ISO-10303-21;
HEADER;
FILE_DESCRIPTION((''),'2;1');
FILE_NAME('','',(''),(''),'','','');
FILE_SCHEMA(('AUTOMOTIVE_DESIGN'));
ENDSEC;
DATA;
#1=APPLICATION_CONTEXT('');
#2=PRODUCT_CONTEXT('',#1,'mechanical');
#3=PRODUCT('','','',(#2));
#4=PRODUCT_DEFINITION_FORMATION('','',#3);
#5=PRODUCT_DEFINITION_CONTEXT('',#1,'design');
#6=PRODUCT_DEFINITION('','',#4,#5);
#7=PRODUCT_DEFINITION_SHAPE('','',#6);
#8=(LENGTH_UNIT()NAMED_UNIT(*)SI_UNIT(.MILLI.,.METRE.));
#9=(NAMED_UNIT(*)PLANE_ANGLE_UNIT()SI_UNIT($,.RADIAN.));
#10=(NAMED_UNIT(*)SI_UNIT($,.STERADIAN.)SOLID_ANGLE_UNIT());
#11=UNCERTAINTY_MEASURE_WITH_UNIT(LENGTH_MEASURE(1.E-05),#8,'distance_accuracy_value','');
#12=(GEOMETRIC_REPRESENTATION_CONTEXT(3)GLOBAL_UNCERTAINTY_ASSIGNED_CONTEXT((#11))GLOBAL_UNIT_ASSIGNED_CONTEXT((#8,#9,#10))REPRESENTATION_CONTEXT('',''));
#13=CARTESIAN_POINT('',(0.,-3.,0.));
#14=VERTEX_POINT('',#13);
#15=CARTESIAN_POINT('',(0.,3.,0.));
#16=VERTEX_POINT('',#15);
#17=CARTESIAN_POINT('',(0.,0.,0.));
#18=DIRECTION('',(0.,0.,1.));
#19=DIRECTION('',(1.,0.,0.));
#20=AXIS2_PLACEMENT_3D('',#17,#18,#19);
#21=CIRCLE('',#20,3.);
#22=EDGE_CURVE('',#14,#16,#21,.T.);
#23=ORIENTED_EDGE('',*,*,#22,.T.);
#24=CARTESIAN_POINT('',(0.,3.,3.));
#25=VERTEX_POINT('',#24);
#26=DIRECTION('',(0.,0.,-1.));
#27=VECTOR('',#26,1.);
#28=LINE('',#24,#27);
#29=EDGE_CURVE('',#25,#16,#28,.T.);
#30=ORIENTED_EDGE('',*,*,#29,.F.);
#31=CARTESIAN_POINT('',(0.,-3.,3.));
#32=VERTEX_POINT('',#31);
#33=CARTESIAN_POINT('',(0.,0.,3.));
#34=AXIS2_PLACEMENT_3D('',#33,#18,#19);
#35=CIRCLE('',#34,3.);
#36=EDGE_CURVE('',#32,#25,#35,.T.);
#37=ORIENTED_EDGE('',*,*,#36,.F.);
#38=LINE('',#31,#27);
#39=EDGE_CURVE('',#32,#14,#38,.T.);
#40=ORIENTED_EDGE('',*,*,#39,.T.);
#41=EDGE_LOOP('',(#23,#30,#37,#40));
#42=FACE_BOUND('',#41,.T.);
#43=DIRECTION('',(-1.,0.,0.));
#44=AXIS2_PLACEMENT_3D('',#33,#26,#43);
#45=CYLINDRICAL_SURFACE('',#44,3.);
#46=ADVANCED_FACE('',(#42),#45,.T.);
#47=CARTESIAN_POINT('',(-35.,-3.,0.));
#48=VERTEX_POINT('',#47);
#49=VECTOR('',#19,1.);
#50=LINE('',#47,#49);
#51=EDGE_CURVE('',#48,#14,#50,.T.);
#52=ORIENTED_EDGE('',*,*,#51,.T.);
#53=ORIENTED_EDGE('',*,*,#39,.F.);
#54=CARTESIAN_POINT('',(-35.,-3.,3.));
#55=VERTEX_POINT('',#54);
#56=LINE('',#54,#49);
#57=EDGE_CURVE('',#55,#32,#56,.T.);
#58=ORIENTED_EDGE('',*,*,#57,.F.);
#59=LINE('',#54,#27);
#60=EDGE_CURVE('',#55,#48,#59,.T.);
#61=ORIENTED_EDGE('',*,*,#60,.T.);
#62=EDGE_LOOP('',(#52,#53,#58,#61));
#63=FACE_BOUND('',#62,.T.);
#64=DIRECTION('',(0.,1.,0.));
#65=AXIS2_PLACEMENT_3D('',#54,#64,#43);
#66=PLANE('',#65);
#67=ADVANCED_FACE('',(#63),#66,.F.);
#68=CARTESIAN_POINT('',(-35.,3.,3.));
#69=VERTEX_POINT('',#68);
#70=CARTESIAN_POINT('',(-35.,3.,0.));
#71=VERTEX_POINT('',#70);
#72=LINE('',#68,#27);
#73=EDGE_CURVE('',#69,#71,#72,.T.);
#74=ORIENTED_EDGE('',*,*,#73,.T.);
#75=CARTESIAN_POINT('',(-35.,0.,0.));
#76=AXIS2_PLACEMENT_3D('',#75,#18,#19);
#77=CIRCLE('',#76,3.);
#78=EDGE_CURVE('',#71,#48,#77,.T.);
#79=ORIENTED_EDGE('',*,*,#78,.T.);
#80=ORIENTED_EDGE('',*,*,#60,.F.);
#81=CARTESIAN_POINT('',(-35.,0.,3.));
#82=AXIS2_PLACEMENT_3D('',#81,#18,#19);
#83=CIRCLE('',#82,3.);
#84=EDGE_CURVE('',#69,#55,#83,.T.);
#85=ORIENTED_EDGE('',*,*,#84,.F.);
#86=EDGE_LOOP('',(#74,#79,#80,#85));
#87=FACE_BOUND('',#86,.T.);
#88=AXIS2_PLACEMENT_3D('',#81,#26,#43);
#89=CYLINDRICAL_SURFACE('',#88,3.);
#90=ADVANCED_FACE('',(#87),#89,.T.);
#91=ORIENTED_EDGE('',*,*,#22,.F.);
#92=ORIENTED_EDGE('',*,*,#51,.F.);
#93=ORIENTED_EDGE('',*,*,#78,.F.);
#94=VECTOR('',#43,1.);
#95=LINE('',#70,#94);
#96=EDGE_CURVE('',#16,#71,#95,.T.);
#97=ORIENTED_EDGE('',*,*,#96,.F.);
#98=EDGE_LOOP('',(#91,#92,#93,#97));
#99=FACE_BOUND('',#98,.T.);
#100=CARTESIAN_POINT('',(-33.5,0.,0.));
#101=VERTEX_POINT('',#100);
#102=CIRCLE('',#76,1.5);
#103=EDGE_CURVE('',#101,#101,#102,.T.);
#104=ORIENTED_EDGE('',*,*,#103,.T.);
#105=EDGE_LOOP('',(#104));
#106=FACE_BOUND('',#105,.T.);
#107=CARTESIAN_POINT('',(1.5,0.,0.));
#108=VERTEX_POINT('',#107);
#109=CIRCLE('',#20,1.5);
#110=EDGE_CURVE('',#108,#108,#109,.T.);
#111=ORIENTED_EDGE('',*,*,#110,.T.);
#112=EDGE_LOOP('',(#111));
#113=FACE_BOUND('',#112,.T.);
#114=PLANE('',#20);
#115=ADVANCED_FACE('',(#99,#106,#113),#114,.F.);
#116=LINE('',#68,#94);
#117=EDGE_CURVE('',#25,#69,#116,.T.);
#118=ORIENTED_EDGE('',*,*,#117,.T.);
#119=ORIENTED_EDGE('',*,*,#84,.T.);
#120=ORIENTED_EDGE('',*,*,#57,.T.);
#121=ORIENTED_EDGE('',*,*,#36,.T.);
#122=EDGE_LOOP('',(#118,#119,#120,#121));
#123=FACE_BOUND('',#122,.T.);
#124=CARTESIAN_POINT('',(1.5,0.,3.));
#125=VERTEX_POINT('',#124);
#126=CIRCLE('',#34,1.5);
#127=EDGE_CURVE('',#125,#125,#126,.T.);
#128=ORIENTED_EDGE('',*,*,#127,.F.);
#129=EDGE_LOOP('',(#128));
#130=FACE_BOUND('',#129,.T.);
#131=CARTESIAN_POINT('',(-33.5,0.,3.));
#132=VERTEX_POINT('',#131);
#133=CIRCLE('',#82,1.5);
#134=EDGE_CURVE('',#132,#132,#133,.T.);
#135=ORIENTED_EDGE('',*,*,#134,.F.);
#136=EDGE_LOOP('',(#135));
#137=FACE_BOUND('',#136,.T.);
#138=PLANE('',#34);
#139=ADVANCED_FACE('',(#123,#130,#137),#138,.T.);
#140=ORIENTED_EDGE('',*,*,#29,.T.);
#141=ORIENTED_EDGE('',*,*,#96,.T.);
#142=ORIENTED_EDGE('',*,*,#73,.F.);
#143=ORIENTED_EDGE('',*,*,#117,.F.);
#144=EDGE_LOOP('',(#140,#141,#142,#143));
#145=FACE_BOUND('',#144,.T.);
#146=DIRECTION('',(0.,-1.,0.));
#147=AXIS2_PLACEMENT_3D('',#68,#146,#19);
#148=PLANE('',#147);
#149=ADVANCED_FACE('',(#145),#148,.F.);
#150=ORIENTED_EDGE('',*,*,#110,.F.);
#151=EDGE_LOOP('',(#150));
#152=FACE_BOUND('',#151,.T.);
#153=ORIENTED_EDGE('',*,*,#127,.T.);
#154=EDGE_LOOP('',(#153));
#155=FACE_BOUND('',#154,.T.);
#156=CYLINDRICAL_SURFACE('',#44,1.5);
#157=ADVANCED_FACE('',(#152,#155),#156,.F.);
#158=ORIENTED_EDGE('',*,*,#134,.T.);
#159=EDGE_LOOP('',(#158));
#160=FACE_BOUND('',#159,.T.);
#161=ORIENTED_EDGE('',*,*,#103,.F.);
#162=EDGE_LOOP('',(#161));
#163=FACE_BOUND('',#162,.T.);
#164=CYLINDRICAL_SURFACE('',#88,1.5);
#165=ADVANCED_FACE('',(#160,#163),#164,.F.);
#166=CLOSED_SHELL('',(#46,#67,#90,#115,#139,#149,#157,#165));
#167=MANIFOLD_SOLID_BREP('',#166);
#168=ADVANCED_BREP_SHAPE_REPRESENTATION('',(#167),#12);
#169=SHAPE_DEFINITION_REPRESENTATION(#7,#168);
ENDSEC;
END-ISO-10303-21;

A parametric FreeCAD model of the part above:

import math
import FreeCAD as App
import Part
import Sketcher
Q = App.Units.Quantity

doc = App.newDocument("Part")
body = doc.addObject("PartDesign::Body", "Body")

# Sketch on XY plane
sketch1 = body.newObject("Sketcher::SketchObject", "Sketch")
sketch1.AttachmentSupport = (doc.getObject("XY_Plane"), [""])
sketch1.MapMode = "FlatFace"
sketch1.addGeometry(Part.LineSegment(App.Vector(0, 3, 0), App.Vector(-35, 3, 0)), False)
sketch1.addGeometry(Part.ArcOfCircle(Part.Circle(App.Vector(-35, 0, 0), App.Vector(0, 0, 1), 3), math.radians(90), math.radians(270)), False)
sketch1.addGeometry(Part.LineSegment(App.Vector(-35, -3, 0), App.Vector(0, -3, 0)), False)
sketch1.addGeometry(Part.ArcOfCircle(Part.Circle(App.Vector(0, 0, 0), App.Vector(0, 0, 1), 3), math.radians(-90), math.radians(90)), False)
sketch1.addGeometry(Part.Circle(App.Vector(0, 0, 0), App.Vector(0, 0, 1), 1.5), False)
sketch1.addGeometry(Part.Circle(App.Vector(-35, 0, 0), App.Vector(0, 0, 1), 1.5), False)
sketch1.addConstraint(Sketcher.Constraint("Tangent", 0, 2, 1, 1))
sketch1.addConstraint(Sketcher.Constraint("Tangent", 1, 2, 2, 1))
sketch1.addConstraint(Sketcher.Constraint("Tangent", 2, 2, 3, 1))
sketch1.addConstraint(Sketcher.Constraint("Tangent", 3, 2, 0, 1))
sketch1.addConstraint(Sketcher.Constraint("Horizontal", 0))
sketch1.addConstraint(Sketcher.Constraint("Horizontal", 2))
sketch1.addConstraint(Sketcher.Constraint("Coincident", 3, 3, -1, 1))
sketch1.addConstraint(Sketcher.Constraint("Coincident", 4, 3, -1, 1))
sketch1.addConstraint(Sketcher.Constraint("Coincident", 5, 3, 1, 3))
sketch1.addConstraint(Sketcher.Constraint("Equal", 4, 5))
sketch1.addConstraint(Sketcher.Constraint("Diameter", 4, Q("3 mm")))
sketch1.addConstraint(Sketcher.Constraint("Radius", 1, Q("3 mm")))
sketch1.addConstraint(Sketcher.Constraint("DistanceX", 0, 2, 0, 1, Q("35 mm")))
pad1 = body.newObject("PartDesign::Pad", "Pad")
pad1.Profile = sketch1
pad1.Length = 3

doc.recompute()
